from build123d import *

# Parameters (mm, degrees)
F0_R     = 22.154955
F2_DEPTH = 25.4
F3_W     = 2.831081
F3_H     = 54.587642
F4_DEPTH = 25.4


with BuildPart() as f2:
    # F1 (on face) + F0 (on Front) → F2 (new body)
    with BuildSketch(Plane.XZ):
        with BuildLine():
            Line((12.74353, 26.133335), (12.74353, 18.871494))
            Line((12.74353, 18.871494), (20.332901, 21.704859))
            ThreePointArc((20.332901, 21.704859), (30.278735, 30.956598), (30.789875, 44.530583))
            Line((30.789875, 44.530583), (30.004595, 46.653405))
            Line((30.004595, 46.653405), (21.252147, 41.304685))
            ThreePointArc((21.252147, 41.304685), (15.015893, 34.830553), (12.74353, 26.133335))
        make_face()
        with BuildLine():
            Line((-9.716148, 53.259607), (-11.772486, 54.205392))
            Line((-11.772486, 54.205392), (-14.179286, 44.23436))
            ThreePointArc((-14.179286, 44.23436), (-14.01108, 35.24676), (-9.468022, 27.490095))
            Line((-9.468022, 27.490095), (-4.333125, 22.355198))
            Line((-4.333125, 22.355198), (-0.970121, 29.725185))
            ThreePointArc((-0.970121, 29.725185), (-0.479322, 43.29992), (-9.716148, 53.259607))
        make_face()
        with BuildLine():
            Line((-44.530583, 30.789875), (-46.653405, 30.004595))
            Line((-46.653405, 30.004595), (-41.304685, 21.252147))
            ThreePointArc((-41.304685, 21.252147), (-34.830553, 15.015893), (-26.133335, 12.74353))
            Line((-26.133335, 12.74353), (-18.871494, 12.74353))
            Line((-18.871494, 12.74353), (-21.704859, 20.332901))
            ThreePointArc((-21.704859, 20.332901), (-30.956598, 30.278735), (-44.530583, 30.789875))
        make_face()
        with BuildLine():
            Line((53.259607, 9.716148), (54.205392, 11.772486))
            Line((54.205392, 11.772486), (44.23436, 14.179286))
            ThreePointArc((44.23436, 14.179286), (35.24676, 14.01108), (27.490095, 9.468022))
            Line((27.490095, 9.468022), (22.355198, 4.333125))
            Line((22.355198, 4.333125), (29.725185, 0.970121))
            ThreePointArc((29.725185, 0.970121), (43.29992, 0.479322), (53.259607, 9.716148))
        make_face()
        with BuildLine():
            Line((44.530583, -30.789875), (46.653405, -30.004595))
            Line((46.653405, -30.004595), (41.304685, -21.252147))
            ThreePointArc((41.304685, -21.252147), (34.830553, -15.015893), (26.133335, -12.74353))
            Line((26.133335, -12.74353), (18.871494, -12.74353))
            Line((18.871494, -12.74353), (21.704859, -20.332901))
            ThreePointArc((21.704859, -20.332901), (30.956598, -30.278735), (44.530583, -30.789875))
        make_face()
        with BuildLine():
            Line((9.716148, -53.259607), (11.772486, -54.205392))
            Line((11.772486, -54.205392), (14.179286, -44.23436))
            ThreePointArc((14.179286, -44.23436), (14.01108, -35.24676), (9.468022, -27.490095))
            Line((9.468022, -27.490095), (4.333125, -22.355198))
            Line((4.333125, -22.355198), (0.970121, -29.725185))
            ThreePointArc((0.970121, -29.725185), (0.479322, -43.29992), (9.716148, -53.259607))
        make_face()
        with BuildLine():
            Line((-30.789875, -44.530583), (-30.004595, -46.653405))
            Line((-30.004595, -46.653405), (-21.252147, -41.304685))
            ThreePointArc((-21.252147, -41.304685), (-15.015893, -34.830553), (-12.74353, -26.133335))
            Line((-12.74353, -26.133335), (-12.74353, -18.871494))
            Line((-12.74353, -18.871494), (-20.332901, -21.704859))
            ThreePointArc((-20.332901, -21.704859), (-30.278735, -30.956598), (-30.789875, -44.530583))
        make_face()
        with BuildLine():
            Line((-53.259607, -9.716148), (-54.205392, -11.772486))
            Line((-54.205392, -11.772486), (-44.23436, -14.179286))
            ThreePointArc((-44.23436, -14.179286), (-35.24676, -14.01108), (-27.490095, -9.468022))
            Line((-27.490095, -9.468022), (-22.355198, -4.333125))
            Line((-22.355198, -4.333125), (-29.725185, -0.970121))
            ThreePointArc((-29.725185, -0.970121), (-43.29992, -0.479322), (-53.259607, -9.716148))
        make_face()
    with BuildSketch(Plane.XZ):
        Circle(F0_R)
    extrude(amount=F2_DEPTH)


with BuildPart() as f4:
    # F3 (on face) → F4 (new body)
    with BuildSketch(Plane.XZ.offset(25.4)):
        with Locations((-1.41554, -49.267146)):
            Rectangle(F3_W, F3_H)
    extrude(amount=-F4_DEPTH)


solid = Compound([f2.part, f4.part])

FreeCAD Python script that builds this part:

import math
import FreeCAD as App
import Part
import Sketcher
from FreeCAD import Vector
Q = App.Units.Quantity


def add_polygon(sketch, points):
    """Adds a closed chain of lines whose ends are joined by coincident constraints."""
    first, n = sketch.GeometryCount, len(points)
    for a, b in zip(points, points[1:] + points[:1]):
        sketch.addGeometry(Part.LineSegment(App.Vector(*a, 0), App.Vector(*b, 0)), False)
    for i in range(n):
        sketch.addConstraint(Sketcher.Constraint("Coincident", first + i, 2, first + (i + 1) % n, 1))

doc = App.newDocument("Part")
body = doc.addObject("PartDesign::Body", "Body")
body.AllowCompound = True

sketch1 = body.newObject("Sketcher::SketchObject", "Sketch")
sketch1.AttachmentSupport = (doc.getObject("XZ_Plane"), [""])
sketch1.MapMode = "FlatFace"
sketch1.addGeometry([
    Part.LineSegment(Vector(12.7, 26.1, 0), Vector(12.7, 18.9, 0)),
    Part.LineSegment(Vector(12.7, 18.9, 0), Vector(20.3, 21.7, 0)),
    Part.ArcOfCircle(Part.Circle(Vector(14.1, 38.4, 0), Vector(0, 0, 1), 17.8), math.radians(-70), math.radians(20)),
    Part.LineSegment(Vector(30.8, 44.5, 0), Vector(30, 46.7, 0)),
    Part.LineSegment(Vector(30, 46.7, 0), Vector(21.3, 41.3, 0)),
    Part.ArcOfCircle(Part.Circle(Vector(30.5, 26.1, 0), Vector(0, 0, 1), 17.8), math.radians(121), math.radians(180)),
    Part.LineSegment(Vector(-9.7, 53.3, 0), Vector(-11.8, 54.2, 0)),
    Part.LineSegment(Vector(-11.8, 54.2, 0), Vector(-14.2, 44.2, 0)),
    Part.ArcOfCircle(Part.Circle(Vector(3.1, 40.1, 0), Vector(0, 0, 1), 17.8), math.radians(166), math.radians(225)),
    Part.LineSegment(Vector(-9.5, 27.5, 0), Vector(-4.3, 22.4, 0)),
    Part.LineSegment(Vector(-4.3, 22.4, 0), Vector(-1, 29.7, 0)),
    Part.ArcOfCircle(Part.Circle(Vector(-17.1, 37.1, 0), Vector(0, 0, 1), 17.8), math.radians(-25), math.radians(65)),
    Part.LineSegment(Vector(-44.5, 30.8, 0), Vector(-46.7, 30, 0)),
    Part.LineSegment(Vector(-46.7, 30, 0), Vector(-41.3, 21.3, 0)),
    Part.ArcOfCircle(Part.Circle(Vector(-26.1, 30.5, 0), Vector(0, 0, 1), 17.8), math.radians(-149), math.radians(-90)),
    Part.LineSegment(Vector(-26.1, 12.7, 0), Vector(-18.9, 12.7, 0)),
    Part.LineSegment(Vector(-18.9, 12.7, 0), Vector(-21.7, 20.3, 0)),
    Part.ArcOfCircle(Part.Circle(Vector(-38.4, 14.1, 0), Vector(0, 0, 1), 17.8), math.radians(20), math.radians(110)),
    Part.LineSegment(Vector(53.3, 9.7, 0), Vector(54.2, 11.8, 0)),
    Part.LineSegment(Vector(54.2, 11.8, 0), Vector(44.2, 14.2, 0)),
    Part.ArcOfCircle(Part.Circle(Vector(40.1, -3.1, 0), Vector(0, 0, 1), 17.8), math.radians(76), math.radians(135)),
    Part.LineSegment(Vector(27.5, 9.5, 0), Vector(22.4, 4.3, 0)),
    Part.LineSegment(Vector(22.4, 4.3, 0), Vector(29.7, 1, 0)),
    Part.ArcOfCircle(Part.Circle(Vector(37.1, 17.1, 0), Vector(0, 0, 1), 17.8), math.radians(-115), math.radians(-25)),
    Part.LineSegment(Vector(44.5, -30.8, 0), Vector(46.7, -30, 0)),
    Part.LineSegment(Vector(46.7, -30, 0), Vector(41.3, -21.3, 0)),
    Part.ArcOfCircle(Part.Circle(Vector(26.1, -30.5, 0), Vector(0, 0, 1), 17.8), math.radians(31), math.radians(90)),
    Part.LineSegment(Vector(26.1, -12.7, 0), Vector(18.9, -12.7, 0)),
    Part.LineSegment(Vector(18.9, -12.7, 0), Vector(21.7, -20.3, 0)),
    Part.ArcOfCircle(Part.Circle(Vector(38.4, -14.1, 0), Vector(0, 0, 1), 17.8), math.radians(-160), math.radians(-70)),
    Part.LineSegment(Vector(9.7, -53.3, 0), Vector(11.8, -54.2, 0)),
    Part.LineSegment(Vector(11.8, -54.2, 0), Vector(14.2, -44.2, 0)),
    Part.ArcOfCircle(Part.Circle(Vector(-3.1, -40.1, 0), Vector(0, 0, 1), 17.8), math.radians(-14), math.radians(45)),
    Part.LineSegment(Vector(9.5, -27.5, 0), Vector(4.3, -22.4, 0)),
    Part.LineSegment(Vector(4.3, -22.4, 0), Vector(1, -29.7, 0)),
    Part.ArcOfCircle(Part.Circle(Vector(17.1, -37.1, 0), Vector(0, 0, 1), 17.8), math.radians(155), math.radians(245)),
    Part.LineSegment(Vector(-30.8, -44.5, 0), Vector(-30, -46.7, 0)),
    Part.LineSegment(Vector(-30, -46.7, 0), Vector(-21.3, -41.3, 0)),
    Part.ArcOfCircle(Part.Circle(Vector(-30.5, -26.1, 0), Vector(0, 0, 1), 17.8), math.radians(-59), math.radians(0)),
    Part.LineSegment(Vector(-12.7, -26.1, 0), Vector(-12.7, -18.9, 0)),
    Part.LineSegment(Vector(-12.7, -18.9, 0), Vector(-20.3, -21.7, 0)),
    Part.ArcOfCircle(Part.Circle(Vector(-14.1, -38.4, 0), Vector(0, 0, 1), 17.8), math.radians(110), math.radians(200)),
    Part.LineSegment(Vector(-53.3, -9.7, 0), Vector(-54.2, -11.8, 0)),
    Part.LineSegment(Vector(-54.2, -11.8, 0), Vector(-44.2, -14.2, 0)),
    Part.ArcOfCircle(Part.Circle(Vector(-40.1, 3.1, 0), Vector(0, 0, 1), 17.8), math.radians(-104), math.radians(-45)),
    Part.LineSegment(Vector(-27.5, -9.5, 0), Vector(-22.4, -4.3, 0)),
    Part.LineSegment(Vector(-22.4, -4.3, 0), Vector(-29.7, -1, 0)),
    Part.ArcOfCircle(Part.Circle(Vector(-37.1, -17.1, 0), Vector(0, 0, 1), 17.8), math.radians(65), math.radians(155)),
    Part.Circle(Vector(0, 0, 0), Vector(0, 0, 1), 22.2),
], False)
sketch1.addConstraint([
    Sketcher.Constraint("Coincident", 0, 2, 1, 1),
    Sketcher.Constraint("Tangent", 1, 2, 2, 1),
    Sketcher.Constraint("Tangent", 2, 2, 3, 1),
    Sketcher.Constraint("Coincident", 3, 2, 4, 1),
    Sketcher.Constraint("Tangent", 4, 2, 5, 1),
    Sketcher.Constraint("Tangent", 5, 2, 0, 1),
    Sketcher.Constraint("Coincident", 6, 2, 7, 1),
    Sketcher.Constraint("Tangent", 7, 2, 8, 1),
    Sketcher.Constraint("Tangent", 8, 2, 9, 1),
    Sketcher.Constraint("Coincident", 9, 2, 10, 1),
    Sketcher.Constraint("Tangent", 10, 2, 11, 1),
    Sketcher.Constraint("Tangent", 11, 2, 6, 1),
    Sketcher.Constraint("Coincident", 12, 2, 13, 1),
    Sketcher.Constraint("Tangent", 13, 2, 14, 1),
    Sketcher.Constraint("Tangent", 14, 2, 15, 1),
    Sketcher.Constraint("Coincident", 15, 2, 16, 1),
    Sketcher.Constraint("Tangent", 16, 2, 17, 1),
    Sketcher.Constraint("Tangent", 17, 2, 12, 1),
    Sketcher.Constraint("Coincident", 18, 2, 19, 1),
    Sketcher.Constraint("Tangent", 19, 2, 20, 1),
    Sketcher.Constraint("Tangent", 20, 2, 21, 1),
    Sketcher.Constraint("Coincident", 21, 2, 22, 1),
    Sketcher.Constraint("Tangent", 22, 2, 23, 1),
    Sketcher.Constraint("Tangent", 23, 2, 18, 1),
    Sketcher.Constraint("Coincident", 24, 2, 25, 1),
    Sketcher.Constraint("Tangent", 25, 2, 26, 1),
    Sketcher.Constraint("Tangent", 26, 2, 27, 1),
    Sketcher.Constraint("Coincident", 27, 2, 28, 1),
    Sketcher.Constraint("Tangent", 28, 2, 29, 1),
    Sketcher.Constraint("Tangent", 29, 2, 24, 1),
    Sketcher.Constraint("Coincident", 30, 2, 31, 1),
    Sketcher.Constraint("Tangent", 31, 2, 32, 1),
    Sketcher.Constraint("Tangent", 32, 2, 33, 1),
    Sketcher.Constraint("Coincident", 33, 2, 34, 1),
    Sketcher.Constraint("Tangent", 34, 2, 35, 1),
    Sketcher.Constraint("Tangent", 35, 2, 30, 1),
    Sketcher.Constraint("Coincident", 36, 2, 37, 1),
    Sketcher.Constraint("Tangent", 37, 2, 38, 1),
    Sketcher.Constraint("Tangent", 38, 2, 39, 1),
    Sketcher.Constraint("Coincident", 39, 2, 40, 1),
    Sketcher.Constraint("Tangent", 40, 2, 41, 1),
    Sketcher.Constraint("Tangent", 41, 2, 36, 1),
    Sketcher.Constraint("Coincident", 42, 2, 43, 1),
    Sketcher.Constraint("Tangent", 43, 2, 44, 1),
    Sketcher.Constraint("Tangent", 44, 2, 45, 1),
    Sketcher.Constraint("Coincident", 45, 2, 46, 1),
    Sketcher.Constraint("Tangent", 46, 2, 47, 1),
    Sketcher.Constraint("Tangent", 47, 2, 42, 1),
    Sketcher.Constraint("Vertical", 0),
    Sketcher.Constraint("Horizontal", 15),
    Sketcher.Constraint("Horizontal", 27),
    Sketcher.Constraint("Vertical", 39),
    Sketcher.Constraint("Coincident", 48, 3, -1, 1),
    Sketcher.Constraint("Equal", 2, 5),
    Sketcher.Constraint("Equal", 5, 11),
    Sketcher.Constraint("Equal", 11, 14),
    Sketcher.Constraint("Equal", 14, 17),
    Sketcher.Constraint("Equal", 8, 20),
    Sketcher.Constraint("Equal", 17, 23),
    Sketcher.Constraint("Equal", 23, 26),
    Sketcher.Constraint("Equal", 26, 29),
    Sketcher.Constraint("Equal", 20, 32),
    Sketcher.Constraint("Equal", 29, 35),
    Sketcher.Constraint("Equal", 35, 38),
    Sketcher.Constraint("Equal", 38, 41),
    Sketcher.Constraint("Equal", 32, 44),
    Sketcher.Constraint("Equal", 41, 47),
    Sketcher.Constraint("Symmetric", 14, 3, 26, 3, -1, 1),
    Sketcher.Constraint("Symmetric", 17, 3, 29, 3, -1, 1),
    Sketcher.Constraint("Symmetric", 8, 3, 32, 3, -1, 1),
    Sketcher.Constraint("Symmetric", 11, 3, 35, 3, -1, 1),
    Sketcher.Constraint("Symmetric", 5, 3, 38, 3, -1, 1),
    Sketcher.Constraint("Symmetric", 2, 3, 41, 3, -1, 1),
    Sketcher.Constraint("Symmetric", 20, 3, 44, 3, -1, 1),
    Sketcher.Constraint("Symmetric", 23, 3, 47, 3, -1, 1),
    Sketcher.Constraint("Symmetric", 12, 2, 24, 2, -1, 1),
    Sketcher.Constraint("Symmetric", 6, 2, 30, 2, -1, 1),
    Sketcher.Constraint("Symmetric", 9, 2, 33, 2, -1, 1),
    Sketcher.Constraint("Symmetric", 3, 2, 36, 2, -1, 1),
    Sketcher.Constraint("Symmetric", 18, 2, 42, 2, -1, 1),
    Sketcher.Constraint("Symmetric", 21, 2, 45, 2, -1, 1),
    Sketcher.Constraint("Perpendicular", 3, 12),
    Sketcher.Constraint("Perpendicular", 4, 13),
    Sketcher.Constraint("Perpendicular", 1, 16),
    Sketcher.Constraint("Perpendicular", 6, 18),
    Sketcher.Constraint("Perpendicular", 7, 19),
    Sketcher.Constraint("Perpendicular", 9, 21),
    Sketcher.Constraint("Perpendicular", 10, 22),
    Sketcher.Constraint("Parallel", 16, 28),
    Sketcher.Constraint("Perpendicular", 28, 40),
    Sketcher.Constraint("Equal", 27, 0),
    Sketcher.Constraint("Equal", 3, 6),
    Sketcher.Constraint("Equal", 4, 7),
    Sketcher.Constraint("Equal", 1, 10),
    Sketcher.Constraint("Equal", 6, 12),
    Sketcher.Constraint("Equal", 12, 18),
    Sketcher.Constraint("Equal", 13, 19),
    Sketcher.Constraint("Radius", 2, Q("0.7 in")),
    Sketcher.Constraint("Radius", 8, Q("0.7000001 in")),
    Sketcher.Constraint("Angle", 9, Q("-45 deg")),
    Sketcher.Constraint("Diameter", 48, 44.30991),
    Sketcher.Constraint("DistanceX", -1, 1, 2, 2, Q("1.2121998 in")),
    Sketcher.Constraint("DistanceY", -1, 1, 17, 2, Q("1.2121998 in")),
    Sketcher.Constraint("DistanceX", 15, 1, 15, 2, 7.261841),
    Sketcher.Constraint("DistanceY", -1, 1, 2, 3, 38.361901),
    Sketcher.Constraint("DistanceX", 17, 3, -1, 1, 38.361901),
    Sketcher.Constraint("DistanceX", -1, 1, 1, 2, 20.332901),
    Sketcher.Constraint("DistanceY", -1, 1, 9, 2, 22.355198),
    Sketcher.Constraint("DistanceX", -1, 1, 21, 2, 22.355198),
    Sketcher.Constraint("Distance", 1, 8.101019),
    Sketcher.Constraint("Distance", 9, 7.261841),
    Sketcher.Constraint("DistanceX", -1, 1, 2, 3, 14.114271),
    Sketcher.Constraint("DistanceX", -1, 1, 8, 3, 3.10434),
    Sketcher.Constraint("DistanceY", 20, 3, -1, 1, 3.10434),
    Sketcher.Constraint("DistanceY", -1, 1, 7, 2, 44.23436),
    Sketcher.Constraint("DistanceX", 10, 2, -1, 1, 0.970121),
])
pad1 = body.newObject("PartDesign::Pad", "Pad")
pad1.Profile = sketch1
pad1.Length = Q("1 in")
body2 = doc.addObject("PartDesign::Body", "Body001")

sketch2 = body2.newObject("Sketcher::SketchObject", "Sketch001")
sketch2.AttachmentSupport = (doc.getObject("XZ_Plane001"), [""])
sketch2.MapMode = "FlatFace"
sketch2.AttachmentOffset = App.Placement(Vector(0, 0, 1 * 25.4), App.Rotation())
add_polygon(sketch2, [(-2.8, -22), (-2.8, -76.6), (0, -76.6), (0, -22)])
sketch2.addConstraint([
    Sketcher.Constraint("Vertical", 0),
    Sketcher.Constraint("Horizontal", 1),
    Sketcher.Constraint("Vertical", 2),
    Sketcher.Constraint("Horizontal", 3),
    Sketcher.Constraint("PointOnObject", 1, 2, -2),
    Sketcher.Constraint("DistanceX", 1, 1, 1, 2, 2.831081),
    Sketcher.Constraint("DistanceY", 0, 2, 0, 1, 54.587642),
    Sketcher.Constraint("DistanceY", 0, 2, -1, 1, 76.560967),
])
pad2 = body2.newObject("PartDesign::Pad", "Pad001")
pad2.Profile = sketch2
pad2.Length = Q("1 in")
pad2.Reversed = True

doc.recompute()
